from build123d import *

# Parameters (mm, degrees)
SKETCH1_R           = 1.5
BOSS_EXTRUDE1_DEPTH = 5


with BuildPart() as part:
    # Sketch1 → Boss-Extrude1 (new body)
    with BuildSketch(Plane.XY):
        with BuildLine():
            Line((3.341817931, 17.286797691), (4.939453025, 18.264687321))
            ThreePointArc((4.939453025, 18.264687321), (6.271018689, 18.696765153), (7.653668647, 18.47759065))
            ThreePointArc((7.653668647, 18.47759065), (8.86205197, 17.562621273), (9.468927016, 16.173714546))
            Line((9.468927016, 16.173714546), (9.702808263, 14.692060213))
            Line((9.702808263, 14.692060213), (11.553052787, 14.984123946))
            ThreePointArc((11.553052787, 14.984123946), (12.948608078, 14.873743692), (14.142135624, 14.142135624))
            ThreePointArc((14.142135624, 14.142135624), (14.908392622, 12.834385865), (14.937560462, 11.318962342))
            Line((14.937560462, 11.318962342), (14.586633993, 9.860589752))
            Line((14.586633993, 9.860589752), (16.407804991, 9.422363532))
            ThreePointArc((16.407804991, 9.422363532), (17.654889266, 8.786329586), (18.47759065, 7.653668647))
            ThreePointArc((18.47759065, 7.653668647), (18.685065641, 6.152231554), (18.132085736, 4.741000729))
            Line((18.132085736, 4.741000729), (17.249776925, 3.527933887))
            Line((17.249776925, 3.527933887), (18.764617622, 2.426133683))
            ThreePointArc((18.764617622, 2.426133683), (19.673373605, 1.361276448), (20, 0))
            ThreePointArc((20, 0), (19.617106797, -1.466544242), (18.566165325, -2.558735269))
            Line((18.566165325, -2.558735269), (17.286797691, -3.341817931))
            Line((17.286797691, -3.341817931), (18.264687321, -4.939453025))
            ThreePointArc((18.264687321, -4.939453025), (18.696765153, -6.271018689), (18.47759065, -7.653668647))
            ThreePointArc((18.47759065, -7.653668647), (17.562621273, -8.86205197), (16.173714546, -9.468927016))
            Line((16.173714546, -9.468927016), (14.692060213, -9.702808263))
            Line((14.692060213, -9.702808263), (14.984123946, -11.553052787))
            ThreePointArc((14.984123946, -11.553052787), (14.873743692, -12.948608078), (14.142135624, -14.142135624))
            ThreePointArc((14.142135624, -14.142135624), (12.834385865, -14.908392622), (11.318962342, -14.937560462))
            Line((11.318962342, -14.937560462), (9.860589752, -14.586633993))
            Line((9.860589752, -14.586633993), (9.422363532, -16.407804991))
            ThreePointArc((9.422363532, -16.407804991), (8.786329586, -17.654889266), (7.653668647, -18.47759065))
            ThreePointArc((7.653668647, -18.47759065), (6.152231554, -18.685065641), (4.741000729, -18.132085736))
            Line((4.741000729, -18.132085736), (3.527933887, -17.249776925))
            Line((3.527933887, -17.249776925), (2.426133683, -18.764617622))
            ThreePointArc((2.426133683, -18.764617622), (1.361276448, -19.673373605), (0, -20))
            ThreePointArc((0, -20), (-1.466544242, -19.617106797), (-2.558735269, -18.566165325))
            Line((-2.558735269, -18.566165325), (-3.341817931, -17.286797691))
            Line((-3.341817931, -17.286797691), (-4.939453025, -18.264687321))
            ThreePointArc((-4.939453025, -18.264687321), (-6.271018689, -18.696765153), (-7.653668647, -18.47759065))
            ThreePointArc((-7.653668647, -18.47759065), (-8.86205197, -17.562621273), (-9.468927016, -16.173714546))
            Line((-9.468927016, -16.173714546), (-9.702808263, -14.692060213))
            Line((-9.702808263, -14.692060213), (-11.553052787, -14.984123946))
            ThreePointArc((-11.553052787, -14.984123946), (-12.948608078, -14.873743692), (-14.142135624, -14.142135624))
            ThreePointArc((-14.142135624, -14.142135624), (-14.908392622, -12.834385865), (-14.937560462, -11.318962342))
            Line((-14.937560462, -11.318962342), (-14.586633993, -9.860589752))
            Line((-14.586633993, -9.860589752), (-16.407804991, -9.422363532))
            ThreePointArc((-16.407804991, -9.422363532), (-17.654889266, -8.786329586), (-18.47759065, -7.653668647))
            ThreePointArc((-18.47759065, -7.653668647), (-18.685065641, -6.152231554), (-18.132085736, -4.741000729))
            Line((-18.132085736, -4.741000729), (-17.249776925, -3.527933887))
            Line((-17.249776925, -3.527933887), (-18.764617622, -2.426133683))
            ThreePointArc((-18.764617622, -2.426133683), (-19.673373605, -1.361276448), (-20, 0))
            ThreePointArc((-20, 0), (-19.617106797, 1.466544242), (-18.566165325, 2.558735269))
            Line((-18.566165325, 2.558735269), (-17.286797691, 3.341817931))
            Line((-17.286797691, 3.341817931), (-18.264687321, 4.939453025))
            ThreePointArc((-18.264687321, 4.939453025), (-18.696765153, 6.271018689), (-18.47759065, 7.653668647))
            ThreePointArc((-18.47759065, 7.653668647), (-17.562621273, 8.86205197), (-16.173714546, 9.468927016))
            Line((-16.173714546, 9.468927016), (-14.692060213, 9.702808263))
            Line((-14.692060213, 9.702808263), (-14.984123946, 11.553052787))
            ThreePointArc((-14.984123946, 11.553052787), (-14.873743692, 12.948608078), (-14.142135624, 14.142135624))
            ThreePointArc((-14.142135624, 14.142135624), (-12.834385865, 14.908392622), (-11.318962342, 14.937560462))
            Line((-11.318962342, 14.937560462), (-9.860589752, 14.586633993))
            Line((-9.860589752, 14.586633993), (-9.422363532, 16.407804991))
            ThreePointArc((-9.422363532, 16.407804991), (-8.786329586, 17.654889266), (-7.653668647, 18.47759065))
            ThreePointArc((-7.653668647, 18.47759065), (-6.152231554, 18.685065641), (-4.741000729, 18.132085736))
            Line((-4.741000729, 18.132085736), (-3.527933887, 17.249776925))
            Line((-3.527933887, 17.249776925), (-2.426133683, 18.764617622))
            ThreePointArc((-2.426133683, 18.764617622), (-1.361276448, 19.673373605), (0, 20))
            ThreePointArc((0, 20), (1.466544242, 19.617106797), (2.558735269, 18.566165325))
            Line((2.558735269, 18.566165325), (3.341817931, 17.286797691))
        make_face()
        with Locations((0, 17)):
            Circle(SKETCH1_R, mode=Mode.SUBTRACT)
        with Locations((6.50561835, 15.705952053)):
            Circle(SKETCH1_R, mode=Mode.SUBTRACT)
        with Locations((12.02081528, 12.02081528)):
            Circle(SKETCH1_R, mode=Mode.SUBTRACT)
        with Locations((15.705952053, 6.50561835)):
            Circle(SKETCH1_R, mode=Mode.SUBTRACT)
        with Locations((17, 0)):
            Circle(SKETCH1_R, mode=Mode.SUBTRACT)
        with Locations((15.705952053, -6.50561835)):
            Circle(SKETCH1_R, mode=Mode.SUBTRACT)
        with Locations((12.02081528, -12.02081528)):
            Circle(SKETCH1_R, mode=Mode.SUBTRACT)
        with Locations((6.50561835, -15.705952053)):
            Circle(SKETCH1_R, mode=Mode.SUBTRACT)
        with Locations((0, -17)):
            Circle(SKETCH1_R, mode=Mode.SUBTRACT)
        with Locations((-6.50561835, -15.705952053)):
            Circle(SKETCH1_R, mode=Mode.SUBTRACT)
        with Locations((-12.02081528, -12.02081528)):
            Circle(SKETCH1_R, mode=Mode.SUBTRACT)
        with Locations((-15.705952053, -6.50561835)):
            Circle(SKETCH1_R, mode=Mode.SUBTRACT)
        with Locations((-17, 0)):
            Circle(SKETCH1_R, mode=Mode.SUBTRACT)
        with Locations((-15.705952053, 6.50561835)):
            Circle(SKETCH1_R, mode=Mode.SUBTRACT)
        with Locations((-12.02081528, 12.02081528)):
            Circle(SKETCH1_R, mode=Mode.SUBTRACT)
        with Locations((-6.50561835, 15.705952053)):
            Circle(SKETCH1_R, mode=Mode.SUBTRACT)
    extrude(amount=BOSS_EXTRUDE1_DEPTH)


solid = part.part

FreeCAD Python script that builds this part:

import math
import FreeCAD as App
import Part
import Sketcher

V = App.Vector
Q = App.Units.Quantity

doc = App.newDocument("Part")
body = doc.addObject("PartDesign::Body", "Body")

# Sketch on XY plane
sketch1 = body.newObject("Sketcher::SketchObject", "Sketch")
sketch1.AttachmentSupport = (doc.getObject("XY_Plane"), [""])
sketch1.MapMode = "FlatFace"
sketch1.addGeometry([
    Part.LineSegment(V(4.9, 18.3, 0), V(3.3, 17.3, 0)),  # 0
    Part.LineSegment(V(3.3, 17.3, 0), V(2.6, 18.6, 0)),  # 1
    Part.ArcOfCircle(Part.Circle(V(0, 17, 0), V(0, 0, 1), 3), math.radians(31), math.radians(90)),  # 2
    Part.ArcOfCircle(Part.Circle(V(0, 17, 0), V(0, 0, 1), 3), math.radians(90), math.radians(144)),  # 3
    Part.LineSegment(V(-2.4, 18.8, 0), V(-3.5, 17.2, 0)),  # 4
    Part.LineSegment(V(-3.5, 17.2, 0), V(-4.7, 18.1, 0)),  # 5
    Part.ArcOfCircle(Part.Circle(V(-6.5, 15.7, 0), V(0, 0, 1), 3), math.radians(54), math.radians(113)),  # 6
    Part.ArcOfCircle(Part.Circle(V(-6.5, 15.7, 0), V(0, 0, 1), 3), math.radians(112), math.radians(166)),  # 7
    Part.LineSegment(V(-9.4, 16.4, 0), V(-9.9, 14.6, 0)),  # 8
    Part.LineSegment(V(-9.9, 14.6, 0), V(-11.3, 14.9, 0)),  # 9
    Part.ArcOfCircle(Part.Circle(V(-12, 12, 0), V(0, 0, 1), 3), math.radians(76), math.radians(135)),  # 10
    Part.ArcOfCircle(Part.Circle(V(-12, 12, 0), V(0, 0, 1), 3), math.radians(135), math.radians(189)),  # 11
    Part.LineSegment(V(-15, 11.6, 0), V(-14.7, 9.7, 0)),  # 12
    Part.LineSegment(V(-14.7, 9.7, 0), V(-16.2, 9.5, 0)),  # 13
    Part.ArcOfCircle(Part.Circle(V(-15.7, 6.5, 0), V(0, 0, 1), 3), math.radians(99), math.radians(158)),  # 14
    Part.ArcOfCircle(Part.Circle(V(-15.7, 6.5, 0), V(0, 0, 1), 3), math.radians(157), math.radians(211)),  # 15
    Part.LineSegment(V(-18.3, 4.9, 0), V(-17.3, 3.3, 0)),  # 16
    Part.LineSegment(V(-17.3, 3.3, 0), V(-18.6, 2.6, 0)),  # 17
    Part.ArcOfCircle(Part.Circle(V(-17, 0, 0), V(0, 0, 1), 3), math.radians(121), math.radians(180)),  # 18
    Part.ArcOfCircle(Part.Circle(V(-17, 0, 0), V(0, 0, 1), 3), math.radians(180), math.radians(234)),  # 19
    Part.LineSegment(V(-18.8, -2.4, 0), V(-17.2, -3.5, 0)),  # 20
    Part.LineSegment(V(-17.2, -3.5, 0), V(-18.1, -4.7, 0)),  # 21
    Part.ArcOfCircle(Part.Circle(V(-15.7, -6.5, 0), V(0, 0, 1), 3), math.radians(144), math.radians(203)),  # 22
    Part.ArcOfCircle(Part.Circle(V(-15.7, -6.5, 0), V(0, 0, 1), 3), math.radians(-158), math.radians(-104)),  # 23
    Part.LineSegment(V(-16.4, -9.4, 0), V(-14.6, -9.9, 0)),  # 24
    Part.LineSegment(V(-14.6, -9.9, 0), V(-14.9, -11.3, 0)),  # 25
    Part.ArcOfCircle(Part.Circle(V(-12, -12, 0), V(0, 0, 1), 3), math.radians(166), math.radians(225)),  # 26
    Part.ArcOfCircle(Part.Circle(V(-12, -12, 0), V(0, 0, 1), 3), math.radians(-135), math.radians(-81)),  # 27
    Part.LineSegment(V(-11.6, -15, 0), V(-9.7, -14.7, 0)),  # 28
    Part.LineSegment(V(-9.7, -14.7, 0), V(-9.5, -16.2, 0)),  # 29
    Part.ArcOfCircle(Part.Circle(V(-6.5, -15.7, 0), V(0, 0, 1), 3), math.radians(-171), math.radians(-112)),  # 30
    Part.ArcOfCircle(Part.Circle(V(-6.5, -15.7, 0), V(0, 0, 1), 3), math.radians(-113), math.radians(-59)),  # 31
    Part.LineSegment(V(-4.9, -18.3, 0), V(-3.3, -17.3, 0)),  # 32
    Part.LineSegment(V(-3.3, -17.3, 0), V(-2.6, -18.6, 0)),  # 33
    Part.ArcOfCircle(Part.Circle(V(0, -17, 0), V(0, 0, 1), 3), math.radians(-149), math.radians(-90)),  # 34
    Part.ArcOfCircle(Part.Circle(V(0, -17, 0), V(0, 0, 1), 3), math.radians(-90), math.radians(-36)),  # 35
    Part.LineSegment(V(2.4, -18.8, 0), V(3.5, -17.2, 0)),  # 36
    Part.LineSegment(V(3.5, -17.2, 0), V(4.7, -18.1, 0)),  # 37
    Part.ArcOfCircle(Part.Circle(V(6.5, -15.7, 0), V(0, 0, 1), 3), math.radians(-126), math.radians(-67)),  # 38
    Part.ArcOfCircle(Part.Circle(V(6.5, -15.7, 0), V(0, 0, 1), 3), math.radians(-68), math.radians(-14)),  # 39
    Part.LineSegment(V(9.4, -16.4, 0), V(9.9, -14.6, 0)),  # 40
    Part.LineSegment(V(9.9, -14.6, 0), V(11.3, -14.9, 0)),  # 41
    Part.ArcOfCircle(Part.Circle(V(12, -12, 0), V(0, 0, 1), 3), math.radians(-104), math.radians(-45)),  # 42
    Part.ArcOfCircle(Part.Circle(V(12, -12, 0), V(0, 0, 1), 3), math.radians(-45), math.radians(9)),  # 43
    Part.LineSegment(V(15, -11.6, 0), V(14.7, -9.7, 0)),  # 44
    Part.LineSegment(V(14.7, -9.7, 0), V(16.2, -9.5, 0)),  # 45
    Part.ArcOfCircle(Part.Circle(V(15.7, -6.5, 0), V(0, 0, 1), 3), math.radians(-81), math.radians(-22)),  # 46
    Part.ArcOfCircle(Part.Circle(V(15.7, -6.5, 0), V(0, 0, 1), 3), math.radians(-23), math.radians(31)),  # 47
    Part.LineSegment(V(18.3, -4.9, 0), V(17.3, -3.3, 0)),  # 48
    Part.LineSegment(V(17.3, -3.3, 0), V(18.6, -2.6, 0)),  # 49
    Part.ArcOfCircle(Part.Circle(V(17, 0, 0), V(0, 0, 1), 3), math.radians(-59), math.radians(0)),  # 50
    Part.ArcOfCircle(Part.Circle(V(17, 0, 0), V(0, 0, 1), 3), math.radians(0), math.radians(54)),  # 51
    Part.LineSegment(V(18.8, 2.4, 0), V(17.2, 3.5, 0)),  # 52
    Part.LineSegment(V(17.2, 3.5, 0), V(18.1, 4.7, 0)),  # 53
    Part.ArcOfCircle(Part.Circle(V(15.7, 6.5, 0), V(0, 0, 1), 3), math.radians(-36), math.radians(23)),  # 54
    Part.ArcOfCircle(Part.Circle(V(15.7, 6.5, 0), V(0, 0, 1), 3), math.radians(22), math.radians(76)),  # 55
    Part.LineSegment(V(16.4, 9.4, 0), V(14.6, 9.9, 0)),  # 56
    Part.LineSegment(V(14.6, 9.9, 0), V(14.9, 11.3, 0)),  # 57
    Part.ArcOfCircle(Part.Circle(V(12, 12, 0), V(0, 0, 1), 3), math.radians(-14), math.radians(45)),  # 58
    Part.ArcOfCircle(Part.Circle(V(12, 12, 0), V(0, 0, 1), 3), math.radians(45), math.radians(99)),  # 59
    Part.LineSegment(V(11.6, 15, 0), V(9.7, 14.7, 0)),  # 60
    Part.LineSegment(V(9.7, 14.7, 0), V(9.5, 16.2, 0)),  # 61
    Part.ArcOfCircle(Part.Circle(V(6.5, 15.7, 0), V(0, 0, 1), 3), math.radians(9), math.radians(68)),  # 62
    Part.ArcOfCircle(Part.Circle(V(6.5, 15.7, 0), V(0, 0, 1), 3), math.radians(67), math.radians(121)),  # 63
    Part.Circle(V(12, -12, 0), V(0, 0, 1), 1.5),  # 64
    Part.Circle(V(6.5, -15.7, 0), V(0, 0, 1), 1.5),  # 65
    Part.Circle(V(15.7, -6.5, 0), V(0, 0, 1), 1.5),  # 66
    Part.Circle(V(0, -17, 0), V(0, 0, 1), 1.5),  # 67
    Part.Circle(V(-6.5, -15.7, 0), V(0, 0, 1), 1.5),  # 68
    Part.Circle(V(-12, -12, 0), V(0, 0, 1), 1.5),  # 69
    Part.Circle(V(-15.7, -6.5, 0), V(0, 0, 1), 1.5),  # 70
    Part.Circle(V(17, 0, 0), V(0, 0, 1), 1.5),  # 71
    Part.Circle(V(15.7, 6.5, 0), V(0, 0, 1), 1.5),  # 72
    Part.Circle(V(12, 12, 0), V(0, 0, 1), 1.5),  # 73
    Part.Circle(V(6.5, 15.7, 0), V(0, 0, 1), 1.5),  # 74
    Part.Circle(V(-17, 0, 0), V(0, 0, 1), 1.5),  # 75
    Part.Circle(V(-15.7, 6.5, 0), V(0, 0, 1), 1.5),  # 76
    Part.Circle(V(0, 17, 0), V(0, 0, 1), 1.5),  # 77
    Part.Circle(V(-6.5, 15.7, 0), V(0, 0, 1), 1.5),  # 78
    Part.Circle(V(-12, 12, 0), V(0, 0, 1), 1.5),  # 79
], False)
sketch1.addConstraint([
    Sketcher.Constraint("Coincident", 0, 2, 1, 1),
    Sketcher.Constraint("Tangent", 1, 2, 2, 1),
    Sketcher.Constraint("Tangent", 2, 2, 3, 1),
    Sketcher.Constraint("Tangent", 3, 2, 4, 1),
    Sketcher.Constraint("Coincident", 4, 2, 5, 1),
    Sketcher.Constraint("Tangent", 5, 2, 6, 1),
    Sketcher.Constraint("Tangent", 6, 2, 7, 1),
    Sketcher.Constraint("Tangent", 7, 2, 8, 1),
    Sketcher.Constraint("Coincident", 8, 2, 9, 1),
    Sketcher.Constraint("Tangent", 9, 2, 10, 1),
    Sketcher.Constraint("Tangent", 10, 2, 11, 1),
    Sketcher.Constraint("Tangent", 11, 2, 12, 1),
    Sketcher.Constraint("Coincident", 12, 2, 13, 1),
    Sketcher.Constraint("Tangent", 13, 2, 14, 1),
    Sketcher.Constraint("Tangent", 14, 2, 15, 1),
    Sketcher.Constraint("Tangent", 15, 2, 16, 1),
    Sketcher.Constraint("Coincident", 16, 2, 17, 1),
    Sketcher.Constraint("Tangent", 17, 2, 18, 1),
    Sketcher.Constraint("Tangent", 18, 2, 19, 1),
    Sketcher.Constraint("Tangent", 19, 2, 20, 1),
    Sketcher.Constraint("Coincident", 20, 2, 21, 1),
    Sketcher.Constraint("Tangent", 21, 2, 22, 1),
    Sketcher.Constraint("Tangent", 22, 2, 23, 1),
    Sketcher.Constraint("Tangent", 23, 2, 24, 1),
    Sketcher.Constraint("Coincident", 24, 2, 25, 1),
    Sketcher.Constraint("Tangent", 25, 2, 26, 1),
    Sketcher.Constraint("Tangent", 26, 2, 27, 1),
    Sketcher.Constraint("Tangent", 27, 2, 28, 1),
    Sketcher.Constraint("Coincident", 28, 2, 29, 1),
    Sketcher.Constraint("Tangent", 29, 2, 30, 1),
    Sketcher.Constraint("Tangent", 30, 2, 31, 1),
    Sketcher.Constraint("Tangent", 31, 2, 32, 1),
    Sketcher.Constraint("Coincident", 32, 2, 33, 1),
    Sketcher.Constraint("Tangent", 33, 2, 34, 1),
    Sketcher.Constraint("Tangent", 34, 2, 35, 1),
    Sketcher.Constraint("Tangent", 35, 2, 36, 1),
    Sketcher.Constraint("Coincident", 36, 2, 37, 1),
    Sketcher.Constraint("Tangent", 37, 2, 38, 1),
    Sketcher.Constraint("Tangent", 38, 2, 39, 1),
    Sketcher.Constraint("Tangent", 39, 2, 40, 1),
    Sketcher.Constraint("Coincident", 40, 2, 41, 1),
    Sketcher.Constraint("Tangent", 41, 2, 42, 1),
    Sketcher.Constraint("Tangent", 42, 2, 43, 1),
    Sketcher.Constraint("Tangent", 43, 2, 44, 1),
    Sketcher.Constraint("Coincident", 44, 2, 45, 1),
    Sketcher.Constraint("Tangent", 45, 2, 46, 1),
    Sketcher.Constraint("Tangent", 46, 2, 47, 1),
    Sketcher.Constraint("Tangent", 47, 2, 48, 1),
    Sketcher.Constraint("Coincident", 48, 2, 49, 1),
    Sketcher.Constraint("Tangent", 49, 2, 50, 1),
    Sketcher.Constraint("Tangent", 50, 2, 51, 1),
    Sketcher.Constraint("Tangent", 51, 2, 52, 1),
    Sketcher.Constraint("Coincident", 52, 2, 53, 1),
    Sketcher.Constraint("Tangent", 53, 2, 54, 1),
    Sketcher.Constraint("Tangent", 54, 2, 55, 1),
    Sketcher.Constraint("Tangent", 55, 2, 56, 1),
    Sketcher.Constraint("Coincident", 56, 2, 57, 1),
    Sketcher.Constraint("Tangent", 57, 2, 58, 1),
    Sketcher.Constraint("Tangent", 58, 2, 59, 1),
    Sketcher.Constraint("Tangent", 59, 2, 60, 1),
    Sketcher.Constraint("Coincident", 60, 2, 61, 1),
    Sketcher.Constraint("Tangent", 61, 2, 62, 1),
    Sketcher.Constraint("Tangent", 62, 2, 63, 1),
    Sketcher.Constraint("Tangent", 63, 2, 0, 1),
    Sketcher.Constraint("Coincident", 64, 3, 42, 3),
    Sketcher.Constraint("Coincident", 65, 3, 38, 3),
    Sketcher.Constraint("Coincident", 66, 3, 46, 3),
    Sketcher.Constraint("Coincident", 67, 3, 34, 3),
    Sketcher.Constraint("Coincident", 68, 3, 30, 3),
    Sketcher.Constraint("Coincident", 69, 3, 26, 3),
    Sketcher.Constraint("Coincident", 70, 3, 22, 3),
    Sketcher.Constraint("Coincident", 71, 3, 50, 3),
    Sketcher.Constraint("Coincident", 72, 3, 54, 3),
    Sketcher.Constraint("Coincident", 73, 3, 58, 3),
    Sketcher.Constraint("Coincident", 74, 3, 62, 3),
    Sketcher.Constraint("Coincident", 75, 3, 18, 3),
    Sketcher.Constraint("Coincident", 76, 3, 14, 3),
    Sketcher.Constraint("Coincident", 77, 3, 2, 3),
    Sketcher.Constraint("Coincident", 78, 3, 6, 3),
    Sketcher.Constraint("Coincident", 79, 3, 10, 3),
    Sketcher.Constraint("Equal", 2, 3),
    Sketcher.Constraint("Equal", 3, 6),
    Sketcher.Constraint("Equal", 6, 7),
    Sketcher.Constraint("Equal", 7, 10),
    Sketcher.Constraint("Equal", 10, 11),
    Sketcher.Constraint("Equal", 11, 14),
    Sketcher.Constraint("Equal", 14, 15),
    Sketcher.Constraint("Equal", 15, 18),
    Sketcher.Constraint("Equal", 18, 19),
    Sketcher.Constraint("Equal", 19, 22),
    Sketcher.Constraint("Equal", 22, 23),
    Sketcher.Constraint("Equal", 23, 26),
    Sketcher.Constraint("Equal", 26, 27),
    Sketcher.Constraint("Equal", 27, 30),
    Sketcher.Constraint("Equal", 30, 31),
    Sketcher.Constraint("Equal", 31, 34),
    Sketcher.Constraint("Equal", 34, 35),
    Sketcher.Constraint("Equal", 35, 38),
    Sketcher.Constraint("Equal", 38, 39),
    Sketcher.Constraint("Equal", 39, 42),
    Sketcher.Constraint("Equal", 42, 43),
    Sketcher.Constraint("Equal", 43, 46),
    Sketcher.Constraint("Equal", 46, 47),
    Sketcher.Constraint("Equal", 47, 50),
    Sketcher.Constraint("Equal", 50, 51),
    Sketcher.Constraint("Equal", 51, 54),
    Sketcher.Constraint("Equal", 54, 55),
    Sketcher.Constraint("Equal", 55, 58),
    Sketcher.Constraint("Equal", 58, 59),
    Sketcher.Constraint("Equal", 59, 62),
    Sketcher.Constraint("Equal", 62, 63),
    Sketcher.Constraint("Equal", 64, 65),
    Sketcher.Constraint("Equal", 65, 66),
    Sketcher.Constraint("Equal", 66, 67),
    Sketcher.Constraint("Equal", 67, 68),
    Sketcher.Constraint("Equal", 68, 69),
    Sketcher.Constraint("Equal", 69, 70),
    Sketcher.Constraint("Equal", 70, 71),
    Sketcher.Constraint("Equal", 71, 72),
    Sketcher.Constraint("Equal", 72, 73),
    Sketcher.Constraint("Equal", 73, 74),
    Sketcher.Constraint("Equal", 74, 75),
    Sketcher.Constraint("Equal", 75, 76),
    Sketcher.Constraint("Equal", 76, 77),
    Sketcher.Constraint("Equal", 77, 78),
    Sketcher.Constraint("Equal", 78, 79),
    Sketcher.Constraint("Symmetric", 2, 3, 34, 3, -1, 1),
    Sketcher.Constraint("Symmetric", 6, 3, 38, 3, -1, 1),
    Sketcher.Constraint("Symmetric", 10, 3, 42, 3, -1, 1),
    Sketcher.Constraint("Symmetric", 14, 3, 46, 3, -1, 1),
    Sketcher.Constraint("Symmetric", 18, 3, 50, 3, -1, 1),
    Sketcher.Constraint("Symmetric", 22, 3, 54, 3, -1, 1),
    Sketcher.Constraint("Symmetric", 26, 3, 58, 3, -1, 1),
    Sketcher.Constraint("Symmetric", 30, 3, 62, 3, -1, 1),
    Sketcher.Constraint("Symmetric", 0, 2, 32, 2, -1, 1),
    Sketcher.Constraint("Symmetric", 4, 2, 36, 2, -1, 1),
    Sketcher.Constraint("Symmetric", 8, 2, 40, 2, -1, 1),
    Sketcher.Constraint("Symmetric", 12, 2, 44, 2, -1, 1),
    Sketcher.Constraint("Symmetric", 16, 2, 48, 2, -1, 1),
    Sketcher.Constraint("Symmetric", 20, 2, 52, 2, -1, 1),
    Sketcher.Constraint("Symmetric", 24, 2, 56, 2, -1, 1),
    Sketcher.Constraint("Symmetric", 28, 2, 60, 2, -1, 1),
    Sketcher.Constraint("Symmetric", 30, 3, 38, 3, -2),
    Sketcher.Constraint("Symmetric", 26, 3, 42, 3, -2),
    Sketcher.Constraint("Symmetric", 22, 3, 46, 3, -2),
    Sketcher.Constraint("PointOnObject", 2, 3, -2),
    Sketcher.Constraint("PointOnObject", 18, 3, -1),
    Sketcher.Constraint("PointOnObject", 2, 2, -2),
    Sketcher.Constraint("PointOnObject", 18, 2, -1),
    Sketcher.Constraint("PointOnObject", 34, 2, -2),
    Sketcher.Constraint("PointOnObject", 50, 2, -1),
    Sketcher.Constraint("Perpendicular", 0, 1),
    Sketcher.Constraint("Perpendicular", 4, 5),
    Sketcher.Constraint("Perpendicular", 8, 9),
    Sketcher.Constraint("Perpendicular", 12, 13),
    Sketcher.Constraint("Parallel", 1, 16),
    Sketcher.Constraint("Perpendicular", 16, 17),
    Sketcher.Constraint("Parallel", 5, 20),
    Sketcher.Constraint("Perpendicular", 20, 21),
    Sketcher.Constraint("Parallel", 9, 24),
    Sketcher.Constraint("Perpendicular", 24, 25),
    Sketcher.Constraint("Parallel", 13, 28),
    Sketcher.Constraint("Perpendicular", 28, 29),
    Sketcher.Constraint("Horizontal", 30, 2, 38, 2),
    Sketcher.Constraint("Horizontal", 26, 2, 42, 2),
    Sketcher.Constraint("Horizontal", 22, 2, 46, 2),
    Sketcher.Constraint("Horizontal", 14, 2, 54, 2),
    Sketcher.Constraint("Horizontal", 10, 2, 58, 2),
    Sketcher.Constraint("Horizontal", 6, 2, 62, 2),
    Sketcher.Constraint("Vertical", 14, 2, 22, 2),
    Sketcher.Constraint("Vertical", 10, 2, 26, 2),
    Sketcher.Constraint("Vertical", 6, 2, 30, 2),
    Sketcher.Constraint("Equal", 0, 4),
    Sketcher.Constraint("Equal", 4, 8),
    Sketcher.Constraint("Equal", 5, 9),
    Sketcher.Constraint("Equal", 8, 12),
    Sketcher.Constraint("Equal", 9, 13),
    Sketcher.Constraint("Equal", 12, 16),
    Sketcher.Constraint("Equal", 13, 17),
    Sketcher.Constraint("Equal", 20, 24),
    Sketcher.Constraint("Diameter", 64, Q("3 mm")),
    Sketcher.Constraint("Radius", 2, Q("3 mm")),
    Sketcher.Constraint("DistanceY", -1, 1, 2, 3, Q("17 mm")),
    Sketcher.Constraint("Distance", 1, Q("1.5 mm")),
    Sketcher.Constraint("DistanceX", 5, 2, -1, 1, Q("4.741001 mm")),
    Sketcher.Constraint("DistanceX", 6, 3, -1, 1, Q("6.505618 mm")),
    Sketcher.Constraint("DistanceX", 6, 2, -1, 1, Q("7.653669 mm")),
    Sketcher.Constraint("DistanceX", 14, 2, -1, 1, Q("18.477591 mm")),
    Sketcher.Constraint("DistanceX", 10, 2, -1, 1, Q("14.142136 mm")),
])
pad1 = body.newObject("PartDesign::Pad", "Pad")
pad1.Profile = sketch1
pad1.Length = 5

doc.recompute()
